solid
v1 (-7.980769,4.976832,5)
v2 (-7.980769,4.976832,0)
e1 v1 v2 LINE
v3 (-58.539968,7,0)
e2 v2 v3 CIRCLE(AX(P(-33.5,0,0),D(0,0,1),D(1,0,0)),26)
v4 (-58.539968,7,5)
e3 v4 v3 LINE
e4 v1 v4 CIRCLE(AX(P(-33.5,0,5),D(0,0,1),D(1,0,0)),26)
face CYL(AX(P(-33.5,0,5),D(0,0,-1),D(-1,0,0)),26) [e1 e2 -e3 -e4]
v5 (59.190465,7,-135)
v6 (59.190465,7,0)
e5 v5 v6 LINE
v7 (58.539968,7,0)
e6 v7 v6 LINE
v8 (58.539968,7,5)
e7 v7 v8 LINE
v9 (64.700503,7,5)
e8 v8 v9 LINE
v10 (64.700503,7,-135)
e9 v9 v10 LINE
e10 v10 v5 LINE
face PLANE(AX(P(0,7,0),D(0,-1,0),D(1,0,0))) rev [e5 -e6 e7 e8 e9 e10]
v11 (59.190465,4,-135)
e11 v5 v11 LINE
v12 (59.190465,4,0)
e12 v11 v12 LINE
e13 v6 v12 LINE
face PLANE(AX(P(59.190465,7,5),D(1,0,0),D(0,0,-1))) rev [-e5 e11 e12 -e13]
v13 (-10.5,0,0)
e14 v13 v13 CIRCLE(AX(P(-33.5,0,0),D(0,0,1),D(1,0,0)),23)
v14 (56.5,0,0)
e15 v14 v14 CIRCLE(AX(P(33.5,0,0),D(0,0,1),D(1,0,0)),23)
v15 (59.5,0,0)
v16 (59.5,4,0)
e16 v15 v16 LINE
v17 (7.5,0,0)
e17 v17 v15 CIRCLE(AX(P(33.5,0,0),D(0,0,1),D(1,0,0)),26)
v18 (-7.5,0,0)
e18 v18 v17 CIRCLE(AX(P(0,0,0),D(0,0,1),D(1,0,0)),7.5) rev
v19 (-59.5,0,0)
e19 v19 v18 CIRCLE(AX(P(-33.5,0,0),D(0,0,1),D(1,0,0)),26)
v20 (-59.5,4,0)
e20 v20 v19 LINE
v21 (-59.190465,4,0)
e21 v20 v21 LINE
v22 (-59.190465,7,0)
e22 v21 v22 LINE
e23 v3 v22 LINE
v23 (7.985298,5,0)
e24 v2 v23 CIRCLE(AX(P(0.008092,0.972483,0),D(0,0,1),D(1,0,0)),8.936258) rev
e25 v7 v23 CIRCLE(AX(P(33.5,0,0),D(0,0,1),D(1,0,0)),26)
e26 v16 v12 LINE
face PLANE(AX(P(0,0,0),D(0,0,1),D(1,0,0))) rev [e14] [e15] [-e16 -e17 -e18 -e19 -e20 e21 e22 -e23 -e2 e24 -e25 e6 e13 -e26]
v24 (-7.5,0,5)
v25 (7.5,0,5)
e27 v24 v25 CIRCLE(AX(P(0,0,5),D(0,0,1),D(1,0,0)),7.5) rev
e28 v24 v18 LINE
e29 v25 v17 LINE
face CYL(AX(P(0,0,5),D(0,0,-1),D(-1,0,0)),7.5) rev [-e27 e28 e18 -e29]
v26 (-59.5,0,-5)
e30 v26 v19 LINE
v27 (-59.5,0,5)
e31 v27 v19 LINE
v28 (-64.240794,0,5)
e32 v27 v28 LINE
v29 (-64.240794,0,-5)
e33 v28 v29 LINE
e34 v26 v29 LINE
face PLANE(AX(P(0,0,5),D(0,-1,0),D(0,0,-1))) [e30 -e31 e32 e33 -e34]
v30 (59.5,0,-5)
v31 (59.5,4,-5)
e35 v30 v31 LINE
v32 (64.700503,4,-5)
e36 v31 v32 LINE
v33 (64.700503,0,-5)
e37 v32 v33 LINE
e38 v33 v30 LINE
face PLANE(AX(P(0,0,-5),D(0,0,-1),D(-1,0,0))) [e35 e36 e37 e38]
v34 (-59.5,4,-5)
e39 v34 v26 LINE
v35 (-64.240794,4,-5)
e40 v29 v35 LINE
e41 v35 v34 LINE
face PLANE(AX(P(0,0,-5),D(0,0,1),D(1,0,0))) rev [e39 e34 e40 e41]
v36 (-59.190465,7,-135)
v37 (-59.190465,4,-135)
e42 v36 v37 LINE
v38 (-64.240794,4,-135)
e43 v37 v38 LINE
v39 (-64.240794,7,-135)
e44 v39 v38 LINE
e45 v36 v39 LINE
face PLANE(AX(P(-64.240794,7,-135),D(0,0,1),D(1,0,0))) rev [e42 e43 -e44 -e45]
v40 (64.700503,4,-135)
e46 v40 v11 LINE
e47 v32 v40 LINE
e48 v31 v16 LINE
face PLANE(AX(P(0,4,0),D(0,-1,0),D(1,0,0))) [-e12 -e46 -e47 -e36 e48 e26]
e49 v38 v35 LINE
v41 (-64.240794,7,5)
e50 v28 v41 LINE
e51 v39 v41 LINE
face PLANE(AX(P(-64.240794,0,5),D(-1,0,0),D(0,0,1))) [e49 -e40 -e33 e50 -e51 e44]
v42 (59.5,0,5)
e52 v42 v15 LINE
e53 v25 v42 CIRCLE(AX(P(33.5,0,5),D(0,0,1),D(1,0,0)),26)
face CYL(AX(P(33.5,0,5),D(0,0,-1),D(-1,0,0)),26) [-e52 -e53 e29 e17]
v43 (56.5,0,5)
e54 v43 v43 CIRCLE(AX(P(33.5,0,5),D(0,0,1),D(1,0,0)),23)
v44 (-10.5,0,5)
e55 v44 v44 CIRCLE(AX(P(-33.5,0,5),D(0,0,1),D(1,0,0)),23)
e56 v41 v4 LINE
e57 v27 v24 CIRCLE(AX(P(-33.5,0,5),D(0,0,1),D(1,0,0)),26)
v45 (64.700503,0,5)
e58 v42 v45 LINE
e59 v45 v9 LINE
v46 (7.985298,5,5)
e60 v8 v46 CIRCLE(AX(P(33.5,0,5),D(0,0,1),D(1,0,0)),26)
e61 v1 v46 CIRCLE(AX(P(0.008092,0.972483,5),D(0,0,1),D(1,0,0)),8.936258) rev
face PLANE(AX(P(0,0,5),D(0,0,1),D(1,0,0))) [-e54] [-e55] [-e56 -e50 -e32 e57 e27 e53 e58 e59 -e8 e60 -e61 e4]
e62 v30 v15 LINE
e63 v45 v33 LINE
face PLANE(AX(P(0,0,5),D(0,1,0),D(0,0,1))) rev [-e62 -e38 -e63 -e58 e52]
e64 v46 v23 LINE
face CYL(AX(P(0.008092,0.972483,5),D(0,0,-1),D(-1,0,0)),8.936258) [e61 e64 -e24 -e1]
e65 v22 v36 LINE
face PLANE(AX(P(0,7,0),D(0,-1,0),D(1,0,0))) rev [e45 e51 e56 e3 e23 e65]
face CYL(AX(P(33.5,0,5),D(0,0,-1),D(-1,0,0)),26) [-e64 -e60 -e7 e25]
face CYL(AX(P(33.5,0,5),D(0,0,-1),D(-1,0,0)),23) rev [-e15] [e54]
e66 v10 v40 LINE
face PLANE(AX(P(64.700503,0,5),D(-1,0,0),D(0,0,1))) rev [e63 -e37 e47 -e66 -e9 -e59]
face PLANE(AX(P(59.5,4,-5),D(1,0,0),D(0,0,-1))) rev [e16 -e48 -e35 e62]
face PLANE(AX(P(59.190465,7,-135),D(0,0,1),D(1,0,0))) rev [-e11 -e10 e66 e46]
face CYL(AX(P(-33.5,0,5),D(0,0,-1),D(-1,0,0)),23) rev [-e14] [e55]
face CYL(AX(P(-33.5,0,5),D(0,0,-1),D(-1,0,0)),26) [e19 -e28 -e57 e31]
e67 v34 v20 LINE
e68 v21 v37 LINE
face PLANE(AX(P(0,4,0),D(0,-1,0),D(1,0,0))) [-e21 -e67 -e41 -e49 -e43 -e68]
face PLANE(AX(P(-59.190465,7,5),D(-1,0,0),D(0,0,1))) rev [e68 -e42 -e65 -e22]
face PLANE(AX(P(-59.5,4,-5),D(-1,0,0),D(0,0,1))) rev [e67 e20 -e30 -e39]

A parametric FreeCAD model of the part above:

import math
import FreeCAD as App
import Part
import Sketcher

V = App.Vector

doc = App.newDocument("Part")
body = doc.addObject("PartDesign::Body", "Body")

# Sketch on XY plane
sketch1 = body.newObject("Sketcher::SketchObject", "Sketch")
sketch1.AttachmentSupport = (doc.getObject("XY_Plane"), [""])
sketch1.MapMode = "FlatFace"
sketch1.addGeometry(Part.LineSegment(V(64.700503, 4, 0), V(59.190465, 4, 0)), False)
sketch1.addGeometry(Part.ArcOfCircle(Part.Circle(V(33.5, 0, 0), V(0, 0, 1), 26), math.radians(8.849883), math.radians(168.912511)), False)
sketch1.addGeometry(Part.ArcOfCircle(Part.Circle(V(0.008092, 0.972483, 0), V(0, 0, 1), 8.936258), math.radians(26.78821), math.radians(153.378068)), False)
sketch1.addGeometry(Part.ArcOfCircle(Part.Circle(V(-33.5, 0, 0), V(0, 0, 1), 26), math.radians(11.035469), math.radians(171.150117)), False)
sketch1.addGeometry(Part.LineSegment(V(-59.190465, 4, 0), V(-64.240794, 4, 0)), False)
sketch1.addGeometry(Part.LineSegment(V(-64.240794, 4, 0), V(-64.240794, 0, 0)), False)
sketch1.addGeometry(Part.LineSegment(V(-64.240794, 0, 0), V(-59.5, 0, 0)), False)
sketch1.addGeometry(Part.ArcOfCircle(Part.Circle(V(-33.5, 0, 0), V(0, 0, 1), 26), math.radians(180), math.radians(360)), False)
sketch1.addGeometry(Part.ArcOfCircle(Part.Circle(V(0, 0, 0), V(0, 0, 1), 7.5), math.radians(0), math.radians(180)), False)
sketch1.addGeometry(Part.ArcOfCircle(Part.Circle(V(33.5, 0, 0), V(0, 0, 1), 26), math.radians(180), math.radians(360)), False)
sketch1.addGeometry(Part.LineSegment(V(59.5, 0, 0), V(64.700503, 0, 0)), False)
sketch1.addGeometry(Part.LineSegment(V(64.700503, 0, 0), V(64.700503, 4, 0)), False)
sketch1.addGeometry(Part.Circle(V(-33.5, 0, 0), V(0, 0, 1), 23), False)
sketch1.addGeometry(Part.Circle(V(33.5, 0, 0), V(0, 0, 1), 23), False)
sketch1.addConstraint(Sketcher.Constraint("Coincident", 0, 2, 1, 1))
sketch1.addConstraint(Sketcher.Constraint("Coincident", 1, 2, 2, 1))
sketch1.addConstraint(Sketcher.Constraint("Coincident", 2, 2, 3, 1))
sketch1.addConstraint(Sketcher.Constraint("Coincident", 3, 2, 4, 1))
sketch1.addConstraint(Sketcher.Constraint("Coincident", 4, 2, 5, 1))
sketch1.addConstraint(Sketcher.Constraint("Coincident", 5, 2, 6, 1))
sketch1.addConstraint(Sketcher.Constraint("Coincident", 6, 2, 7, 1))
sketch1.addConstraint(Sketcher.Constraint("Tangent", 7, 2, 8, 2))
sketch1.addConstraint(Sketcher.Constraint("Tangent", 8, 1, 9, 1))
sketch1.addConstraint(Sketcher.Constraint("Coincident", 9, 2, 10, 1))
sketch1.addConstraint(Sketcher.Constraint("Coincident", 10, 2, 11, 1))
sketch1.addConstraint(Sketcher.Constraint("Coincident", 11, 2, 0, 1))
sketch1.addConstraint(Sketcher.Constraint("Horizontal", 0))
sketch1.addConstraint(Sketcher.Constraint("Horizontal", 4))
sketch1.addConstraint(Sketcher.Constraint("Vertical", 5))
sketch1.addConstraint(Sketcher.Constraint("Horizontal", 6))
sketch1.addConstraint(Sketcher.Constraint("Horizontal", 10))
sketch1.addConstraint(Sketcher.Constraint("Vertical", 11))
sketch1.addConstraint(Sketcher.Constraint("Coincident", 8, 3, -1, 1))
sketch1.addConstraint(Sketcher.Constraint("Coincident", 7, 3, 3, 3))
sketch1.addConstraint(Sketcher.Constraint("Coincident", 9, 3, 1, 3))
sketch1.addConstraint(Sketcher.Constraint("Coincident", 12, 3, 3, 3))
sketch1.addConstraint(Sketcher.Constraint("Coincident", 13, 3, 1, 3))
sketch1.addConstraint(Sketcher.Constraint("Equal", 1, 3))
sketch1.addConstraint(Sketcher.Constraint("Equal", 3, 7))
sketch1.addConstraint(Sketcher.Constraint("Equal", 7, 9))
sketch1.addConstraint(Sketcher.Constraint("Equal", 12, 13))
sketch1.addConstraint(Sketcher.Constraint("Symmetric", 0, 2, 3, 2, -2))
sketch1.addConstraint(Sketcher.Constraint("PointOnObject", 1, 3, -1))
sketch1.addConstraint(Sketcher.Constraint("PointOnObject", 5, 2, -1))
sketch1.addConstraint(Sketcher.Constraint("PointOnObject", 9, 2, -1))
sketch1.addConstraint(Sketcher.Constraint("Diameter", 12, 46.0))
sketch1.addConstraint(Sketcher.Constraint("Radius", 1, 26.0))
sketch1.addConstraint(Sketcher.Constraint("Radius", 8, 7.5))
sketch1.addConstraint(Sketcher.Constraint("DistanceY", 5, 2, 5, 1, 4.0))
sketch1.addConstraint(Sketcher.Constraint("DistanceY", -1, 1, 1, 2, 5.0))
sketch1.addConstraint(Sketcher.Constraint("Radius", 2, 8.936258))
sketch1.addConstraint(Sketcher.Constraint("DistanceX", 4, 2, 4, 1, 5.050329))
sketch1.addConstraint(Sketcher.Constraint("DistanceX", 0, 2, 0, 1, 5.510038))
sketch1.addConstraint(Sketcher.Constraint("DistanceX", -1, 1, 2, 3, 0.008092))
pad1 = body.newObject("PartDesign::Pad", "Pad")
pad1.Profile = sketch1
pad1.Length = 5

# Sketch on XY plane
sketch2 = body.newObject("Sketcher::SketchObject", "Sketch001")
sketch2.AttachmentSupport = (doc.getObject("XY_Plane"), [""])
sketch2.MapMode = "FlatFace"
sketch2.addGeometry(Part.LineSegment(V(64.700503, 4, 0), V(64.700503, 0, 0)), False)
sketch2.addGeometry(Part.LineSegment(V(64.700503, 0, 0), V(59.5, 0, 0)), False)
sketch2.addGeometry(Part.LineSegment(V(59.5, 0, 0), V(59.5, 4, 0)), False)
sketch2.addGeometry(Part.LineSegment(V(59.5, 4, 0), V(64.700503, 4, 0)), False)
sketch2.addGeometry(Part.LineSegment(V(-59.5, 4, 0), V(-59.5, 0, 0)), False)
sketch2.addGeometry(Part.LineSegment(V(-59.5, 0, 0), V(-64.240794, 0, 0)), False)
sketch2.addGeometry(Part.LineSegment(V(-64.240794, 0, 0), V(-64.240794, 4, 0)), False)
sketch2.addGeometry(Part.LineSegment(V(-64.240794, 4, 0), V(-59.5, 4, 0)), False)
sketch2.addConstraint(Sketcher.Constraint("Coincident", 0, 2, 1, 1))
sketch2.addConstraint(Sketcher.Constraint("Coincident", 1, 2, 2, 1))
sketch2.addConstraint(Sketcher.Constraint("Coincident", 2, 2, 3, 1))
sketch2.addConstraint(Sketcher.Constraint("Coincident", 3, 2, 0, 1))
sketch2.addConstraint(Sketcher.Constraint("Coincident", 4, 2, 5, 1))
sketch2.addConstraint(Sketcher.Constraint("Coincident", 5, 2, 6, 1))
sketch2.addConstraint(Sketcher.Constraint("Coincident", 6, 2, 7, 1))
sketch2.addConstraint(Sketcher.Constraint("Coincident", 7, 2, 4, 1))
sketch2.addConstraint(Sketcher.Constraint("Vertical", 0))
sketch2.addConstraint(Sketcher.Constraint("Horizontal", 1))
sketch2.addConstraint(Sketcher.Constraint("Vertical", 2))
sketch2.addConstraint(Sketcher.Constraint("Horizontal", 3))
sketch2.addConstraint(Sketcher.Constraint("Vertical", 4))
sketch2.addConstraint(Sketcher.Constraint("Horizontal", 5))
sketch2.addConstraint(Sketcher.Constraint("Vertical", 6))
sketch2.addConstraint(Sketcher.Constraint("Horizontal", 7))
sketch2.addConstraint(Sketcher.Constraint("Symmetric", 1, 2, 4, 2, -1, 1))
sketch2.addConstraint(Sketcher.Constraint("PointOnObject", 0, 2, -1))
sketch2.addConstraint(Sketcher.Constraint("Horizontal", 3, 2, 6, 2))
sketch2.addConstraint(Sketcher.Constraint("DistanceY", 0, 2, 0, 1, 4.0))
sketch2.addConstraint(Sketcher.Constraint("DistanceX", 4, 2, 1, 2, 119.0))
sketch2.addConstraint(Sketcher.Constraint("DistanceX", 1, 2, 1, 1, 5.200503))
sketch2.addConstraint(Sketcher.Constraint("DistanceX", 5, 2, 5, 1, 4.740794))
pad2 = body.newObject("PartDesign::Pad", "Pad001")
pad2.Profile = sketch2
pad2.Length = 5
pad2.Reversed = True

# Sketch on XZ plane
sketch3 = body.newObject("Sketcher::SketchObject", "Sketch002")
sketch3.AttachmentSupport = (doc.getObject("XZ_Plane"), [""])
sketch3.MapMode = "FlatFace"
sketch3.AttachmentOffset = App.Placement(V(0, 0, -4), App.Rotation())
sketch3.addGeometry(Part.LineSegment(V(59.190465, -135, 0), V(59.190465, 5, 0)), False)
sketch3.addGeometry(Part.LineSegment(V(59.190465, 5, 0), V(64.700503, 5, 0)), False)
sketch3.addGeometry(Part.LineSegment(V(64.700503, 5, 0), V(64.700503, -135, 0)), False)
sketch3.addGeometry(Part.LineSegment(V(64.700503, -135, 0), V(59.190465, -135, 0)), False)
sketch3.addGeometry(Part.LineSegment(V(-64.240794, -135, 0), V(-64.240794, 5, 0)), False)
sketch3.addGeometry(Part.LineSegment(V(-64.240794, 5, 0), V(-59.190465, 5, 0)), False)
sketch3.addGeometry(Part.LineSegment(V(-59.190465, 5, 0), V(-59.190465, -135, 0)), False)
sketch3.addGeometry(Part.LineSegment(V(-59.190465, -135, 0), V(-64.240794, -135, 0)), False)
sketch3.addConstraint(Sketcher.Constraint("Coincident", 0, 2, 1, 1))
sketch3.addConstraint(Sketcher.Constraint("Coincident", 1, 2, 2, 1))
sketch3.addConstraint(Sketcher.Constraint("Coincident", 2, 2, 3, 1))
sketch3.addConstraint(Sketcher.Constraint("Coincident", 3, 2, 0, 1))
sketch3.addConstraint(Sketcher.Constraint("Coincident", 4, 2, 5, 1))
sketch3.addConstraint(Sketcher.Constraint("Coincident", 5, 2, 6, 1))
sketch3.addConstraint(Sketcher.Constraint("Coincident", 6, 2, 7, 1))
sketch3.addConstraint(Sketcher.Constraint("Coincident", 7, 2, 4, 1))
sketch3.addConstraint(Sketcher.Constraint("Vertical", 0))
sketch3.addConstraint(Sketcher.Constraint("Horizontal", 1))
sketch3.addConstraint(Sketcher.Constraint("Vertical", 2))
sketch3.addConstraint(Sketcher.Constraint("Horizontal", 3))
sketch3.addConstraint(Sketcher.Constraint("Vertical", 4))
sketch3.addConstraint(Sketcher.Constraint("Horizontal", 5))
sketch3.addConstraint(Sketcher.Constraint("Vertical", 6))
sketch3.addConstraint(Sketcher.Constraint("Horizontal", 7))
sketch3.addConstraint(Sketcher.Constraint("Symmetric", 0, 2, 5, 2, -2))
sketch3.addConstraint(Sketcher.Constraint("Horizontal", 3, 2, 6, 2))
sketch3.addConstraint(Sketcher.Constraint("DistanceY", 0, 1, 0, 2, 140.0))
sketch3.addConstraint(Sketcher.Constraint("DistanceY", -1, 1, 0, 2, 5.0))
sketch3.addConstraint(Sketcher.Constraint("DistanceX", 5, 1, 5, 2, 5.050329))
sketch3.addConstraint(Sketcher.Constraint("DistanceX", 1, 1, 1, 2, 5.510038))
sketch3.addConstraint(Sketcher.Constraint("DistanceX", 4, 2, 0, 2, 123.431259))
pad3 = body.newObject("PartDesign::Pad", "Pad002")
pad3.Profile = sketch3
pad3.Length = 3
pad3.Reversed = True

# Sketch on YZ plane
sketch4 = body.newObject("Sketcher::SketchObject", "Sketch003")
sketch4.AttachmentSupport = (doc.getObject("YZ_Plane"), [""])
sketch4.MapMode = "FlatFace"
sketch4.AttachmentOffset = App.Placement(V(0, 0, 59.190465), App.Rotation())
sketch4.addGeometry(Part.LineSegment(V(7, 0, 0), V(4, 0, 0)), False)
sketch4.addGeometry(Part.LineSegment(V(4, 0, 0), V(4, 5, 0)), False)
sketch4.addGeometry(Part.LineSegment(V(4, 5, 0), V(7, 5, 0)), False)
sketch4.addGeometry(Part.LineSegment(V(7, 5, 0), V(7, 0, 0)), False)
sketch4.addConstraint(Sketcher.Constraint("Coincident", 0, 2, 1, 1))
sketch4.addConstraint(Sketcher.Constraint("Coincident", 1, 2, 2, 1))
sketch4.addConstraint(Sketcher.Constraint("Coincident", 2, 2, 3, 1))
sketch4.addConstraint(Sketcher.Constraint("Coincident", 3, 2, 0, 1))
sketch4.addConstraint(Sketcher.Constraint("Horizontal", 0))
sketch4.addConstraint(Sketcher.Constraint("Vertical", 1))
sketch4.addConstraint(Sketcher.Constraint("Horizontal", 2))
sketch4.addConstraint(Sketcher.Constraint("Vertical", 3))
sketch4.addConstraint(Sketcher.Constraint("PointOnObject", 0, 2, -1))
sketch4.addConstraint(Sketcher.Constraint("DistanceX", 0, 2, 0, 1, 3.0))
sketch4.addConstraint(Sketcher.Constraint("DistanceY", 1, 1, 1, 2, 5.0))
sketch4.addConstraint(Sketcher.Constraint("DistanceX", -1, 1, 0, 2, 4.0))
pad4 = body.newObject("PartDesign::Pad", "Pad003")
pad4.Profile = sketch4
pad4.Length = 3
pad4.Reversed = True

# Sketch on YZ plane
sketch5 = body.newObject("Sketcher::SketchObject", "Sketch004")
sketch5.AttachmentSupport = (doc.getObject("YZ_Plane"), [""])
sketch5.MapMode = "FlatFace"
sketch5.AttachmentOffset = App.Placement(V(0, 0, -59.190465), App.Rotation())
sketch5.addGeometry(Part.LineSegment(V(7, 5, 0), V(4, 5, 0)), False)
sketch5.addGeometry(Part.LineSegment(V(4, 5, 0), V(4, 0, 0)), False)
sketch5.addGeometry(Part.LineSegment(V(4, 0, 0), V(7, 0, 0)), False)
sketch5.addGeometry(Part.LineSegment(V(7, 0, 0), V(7, 5, 0)), False)
sketch5.addConstraint(Sketcher.Constraint("Coincident", 0, 2, 1, 1))
sketch5.addConstraint(Sketcher.Constraint("Coincident", 1, 2, 2, 1))
sketch5.addConstraint(Sketcher.Constraint("Coincident", 2, 2, 3, 1))
sketch5.addConstraint(Sketcher.Constraint("Coincident", 3, 2, 0, 1))
sketch5.addConstraint(Sketcher.Constraint("Horizontal", 0))
sketch5.addConstraint(Sketcher.Constraint("Vertical", 1))
sketch5.addConstraint(Sketcher.Constraint("Horizontal", 2))
sketch5.addConstraint(Sketcher.Constraint("Vertical", 3))
sketch5.addConstraint(Sketcher.Constraint("PointOnObject", 1, 2, -1))
sketch5.addConstraint(Sketcher.Constraint("DistanceX", 0, 2, 0, 1, 3.0))
sketch5.addConstraint(Sketcher.Constraint("DistanceY", 1, 2, 1, 1, 5.0))
sketch5.addConstraint(Sketcher.Constraint("DistanceX", -1, 1, 0, 2, 4.0))
pad5 = body.newObject("PartDesign::Pad", "Pad004")
pad5.Profile = sketch5
pad5.Length = 3

doc.recompute()
